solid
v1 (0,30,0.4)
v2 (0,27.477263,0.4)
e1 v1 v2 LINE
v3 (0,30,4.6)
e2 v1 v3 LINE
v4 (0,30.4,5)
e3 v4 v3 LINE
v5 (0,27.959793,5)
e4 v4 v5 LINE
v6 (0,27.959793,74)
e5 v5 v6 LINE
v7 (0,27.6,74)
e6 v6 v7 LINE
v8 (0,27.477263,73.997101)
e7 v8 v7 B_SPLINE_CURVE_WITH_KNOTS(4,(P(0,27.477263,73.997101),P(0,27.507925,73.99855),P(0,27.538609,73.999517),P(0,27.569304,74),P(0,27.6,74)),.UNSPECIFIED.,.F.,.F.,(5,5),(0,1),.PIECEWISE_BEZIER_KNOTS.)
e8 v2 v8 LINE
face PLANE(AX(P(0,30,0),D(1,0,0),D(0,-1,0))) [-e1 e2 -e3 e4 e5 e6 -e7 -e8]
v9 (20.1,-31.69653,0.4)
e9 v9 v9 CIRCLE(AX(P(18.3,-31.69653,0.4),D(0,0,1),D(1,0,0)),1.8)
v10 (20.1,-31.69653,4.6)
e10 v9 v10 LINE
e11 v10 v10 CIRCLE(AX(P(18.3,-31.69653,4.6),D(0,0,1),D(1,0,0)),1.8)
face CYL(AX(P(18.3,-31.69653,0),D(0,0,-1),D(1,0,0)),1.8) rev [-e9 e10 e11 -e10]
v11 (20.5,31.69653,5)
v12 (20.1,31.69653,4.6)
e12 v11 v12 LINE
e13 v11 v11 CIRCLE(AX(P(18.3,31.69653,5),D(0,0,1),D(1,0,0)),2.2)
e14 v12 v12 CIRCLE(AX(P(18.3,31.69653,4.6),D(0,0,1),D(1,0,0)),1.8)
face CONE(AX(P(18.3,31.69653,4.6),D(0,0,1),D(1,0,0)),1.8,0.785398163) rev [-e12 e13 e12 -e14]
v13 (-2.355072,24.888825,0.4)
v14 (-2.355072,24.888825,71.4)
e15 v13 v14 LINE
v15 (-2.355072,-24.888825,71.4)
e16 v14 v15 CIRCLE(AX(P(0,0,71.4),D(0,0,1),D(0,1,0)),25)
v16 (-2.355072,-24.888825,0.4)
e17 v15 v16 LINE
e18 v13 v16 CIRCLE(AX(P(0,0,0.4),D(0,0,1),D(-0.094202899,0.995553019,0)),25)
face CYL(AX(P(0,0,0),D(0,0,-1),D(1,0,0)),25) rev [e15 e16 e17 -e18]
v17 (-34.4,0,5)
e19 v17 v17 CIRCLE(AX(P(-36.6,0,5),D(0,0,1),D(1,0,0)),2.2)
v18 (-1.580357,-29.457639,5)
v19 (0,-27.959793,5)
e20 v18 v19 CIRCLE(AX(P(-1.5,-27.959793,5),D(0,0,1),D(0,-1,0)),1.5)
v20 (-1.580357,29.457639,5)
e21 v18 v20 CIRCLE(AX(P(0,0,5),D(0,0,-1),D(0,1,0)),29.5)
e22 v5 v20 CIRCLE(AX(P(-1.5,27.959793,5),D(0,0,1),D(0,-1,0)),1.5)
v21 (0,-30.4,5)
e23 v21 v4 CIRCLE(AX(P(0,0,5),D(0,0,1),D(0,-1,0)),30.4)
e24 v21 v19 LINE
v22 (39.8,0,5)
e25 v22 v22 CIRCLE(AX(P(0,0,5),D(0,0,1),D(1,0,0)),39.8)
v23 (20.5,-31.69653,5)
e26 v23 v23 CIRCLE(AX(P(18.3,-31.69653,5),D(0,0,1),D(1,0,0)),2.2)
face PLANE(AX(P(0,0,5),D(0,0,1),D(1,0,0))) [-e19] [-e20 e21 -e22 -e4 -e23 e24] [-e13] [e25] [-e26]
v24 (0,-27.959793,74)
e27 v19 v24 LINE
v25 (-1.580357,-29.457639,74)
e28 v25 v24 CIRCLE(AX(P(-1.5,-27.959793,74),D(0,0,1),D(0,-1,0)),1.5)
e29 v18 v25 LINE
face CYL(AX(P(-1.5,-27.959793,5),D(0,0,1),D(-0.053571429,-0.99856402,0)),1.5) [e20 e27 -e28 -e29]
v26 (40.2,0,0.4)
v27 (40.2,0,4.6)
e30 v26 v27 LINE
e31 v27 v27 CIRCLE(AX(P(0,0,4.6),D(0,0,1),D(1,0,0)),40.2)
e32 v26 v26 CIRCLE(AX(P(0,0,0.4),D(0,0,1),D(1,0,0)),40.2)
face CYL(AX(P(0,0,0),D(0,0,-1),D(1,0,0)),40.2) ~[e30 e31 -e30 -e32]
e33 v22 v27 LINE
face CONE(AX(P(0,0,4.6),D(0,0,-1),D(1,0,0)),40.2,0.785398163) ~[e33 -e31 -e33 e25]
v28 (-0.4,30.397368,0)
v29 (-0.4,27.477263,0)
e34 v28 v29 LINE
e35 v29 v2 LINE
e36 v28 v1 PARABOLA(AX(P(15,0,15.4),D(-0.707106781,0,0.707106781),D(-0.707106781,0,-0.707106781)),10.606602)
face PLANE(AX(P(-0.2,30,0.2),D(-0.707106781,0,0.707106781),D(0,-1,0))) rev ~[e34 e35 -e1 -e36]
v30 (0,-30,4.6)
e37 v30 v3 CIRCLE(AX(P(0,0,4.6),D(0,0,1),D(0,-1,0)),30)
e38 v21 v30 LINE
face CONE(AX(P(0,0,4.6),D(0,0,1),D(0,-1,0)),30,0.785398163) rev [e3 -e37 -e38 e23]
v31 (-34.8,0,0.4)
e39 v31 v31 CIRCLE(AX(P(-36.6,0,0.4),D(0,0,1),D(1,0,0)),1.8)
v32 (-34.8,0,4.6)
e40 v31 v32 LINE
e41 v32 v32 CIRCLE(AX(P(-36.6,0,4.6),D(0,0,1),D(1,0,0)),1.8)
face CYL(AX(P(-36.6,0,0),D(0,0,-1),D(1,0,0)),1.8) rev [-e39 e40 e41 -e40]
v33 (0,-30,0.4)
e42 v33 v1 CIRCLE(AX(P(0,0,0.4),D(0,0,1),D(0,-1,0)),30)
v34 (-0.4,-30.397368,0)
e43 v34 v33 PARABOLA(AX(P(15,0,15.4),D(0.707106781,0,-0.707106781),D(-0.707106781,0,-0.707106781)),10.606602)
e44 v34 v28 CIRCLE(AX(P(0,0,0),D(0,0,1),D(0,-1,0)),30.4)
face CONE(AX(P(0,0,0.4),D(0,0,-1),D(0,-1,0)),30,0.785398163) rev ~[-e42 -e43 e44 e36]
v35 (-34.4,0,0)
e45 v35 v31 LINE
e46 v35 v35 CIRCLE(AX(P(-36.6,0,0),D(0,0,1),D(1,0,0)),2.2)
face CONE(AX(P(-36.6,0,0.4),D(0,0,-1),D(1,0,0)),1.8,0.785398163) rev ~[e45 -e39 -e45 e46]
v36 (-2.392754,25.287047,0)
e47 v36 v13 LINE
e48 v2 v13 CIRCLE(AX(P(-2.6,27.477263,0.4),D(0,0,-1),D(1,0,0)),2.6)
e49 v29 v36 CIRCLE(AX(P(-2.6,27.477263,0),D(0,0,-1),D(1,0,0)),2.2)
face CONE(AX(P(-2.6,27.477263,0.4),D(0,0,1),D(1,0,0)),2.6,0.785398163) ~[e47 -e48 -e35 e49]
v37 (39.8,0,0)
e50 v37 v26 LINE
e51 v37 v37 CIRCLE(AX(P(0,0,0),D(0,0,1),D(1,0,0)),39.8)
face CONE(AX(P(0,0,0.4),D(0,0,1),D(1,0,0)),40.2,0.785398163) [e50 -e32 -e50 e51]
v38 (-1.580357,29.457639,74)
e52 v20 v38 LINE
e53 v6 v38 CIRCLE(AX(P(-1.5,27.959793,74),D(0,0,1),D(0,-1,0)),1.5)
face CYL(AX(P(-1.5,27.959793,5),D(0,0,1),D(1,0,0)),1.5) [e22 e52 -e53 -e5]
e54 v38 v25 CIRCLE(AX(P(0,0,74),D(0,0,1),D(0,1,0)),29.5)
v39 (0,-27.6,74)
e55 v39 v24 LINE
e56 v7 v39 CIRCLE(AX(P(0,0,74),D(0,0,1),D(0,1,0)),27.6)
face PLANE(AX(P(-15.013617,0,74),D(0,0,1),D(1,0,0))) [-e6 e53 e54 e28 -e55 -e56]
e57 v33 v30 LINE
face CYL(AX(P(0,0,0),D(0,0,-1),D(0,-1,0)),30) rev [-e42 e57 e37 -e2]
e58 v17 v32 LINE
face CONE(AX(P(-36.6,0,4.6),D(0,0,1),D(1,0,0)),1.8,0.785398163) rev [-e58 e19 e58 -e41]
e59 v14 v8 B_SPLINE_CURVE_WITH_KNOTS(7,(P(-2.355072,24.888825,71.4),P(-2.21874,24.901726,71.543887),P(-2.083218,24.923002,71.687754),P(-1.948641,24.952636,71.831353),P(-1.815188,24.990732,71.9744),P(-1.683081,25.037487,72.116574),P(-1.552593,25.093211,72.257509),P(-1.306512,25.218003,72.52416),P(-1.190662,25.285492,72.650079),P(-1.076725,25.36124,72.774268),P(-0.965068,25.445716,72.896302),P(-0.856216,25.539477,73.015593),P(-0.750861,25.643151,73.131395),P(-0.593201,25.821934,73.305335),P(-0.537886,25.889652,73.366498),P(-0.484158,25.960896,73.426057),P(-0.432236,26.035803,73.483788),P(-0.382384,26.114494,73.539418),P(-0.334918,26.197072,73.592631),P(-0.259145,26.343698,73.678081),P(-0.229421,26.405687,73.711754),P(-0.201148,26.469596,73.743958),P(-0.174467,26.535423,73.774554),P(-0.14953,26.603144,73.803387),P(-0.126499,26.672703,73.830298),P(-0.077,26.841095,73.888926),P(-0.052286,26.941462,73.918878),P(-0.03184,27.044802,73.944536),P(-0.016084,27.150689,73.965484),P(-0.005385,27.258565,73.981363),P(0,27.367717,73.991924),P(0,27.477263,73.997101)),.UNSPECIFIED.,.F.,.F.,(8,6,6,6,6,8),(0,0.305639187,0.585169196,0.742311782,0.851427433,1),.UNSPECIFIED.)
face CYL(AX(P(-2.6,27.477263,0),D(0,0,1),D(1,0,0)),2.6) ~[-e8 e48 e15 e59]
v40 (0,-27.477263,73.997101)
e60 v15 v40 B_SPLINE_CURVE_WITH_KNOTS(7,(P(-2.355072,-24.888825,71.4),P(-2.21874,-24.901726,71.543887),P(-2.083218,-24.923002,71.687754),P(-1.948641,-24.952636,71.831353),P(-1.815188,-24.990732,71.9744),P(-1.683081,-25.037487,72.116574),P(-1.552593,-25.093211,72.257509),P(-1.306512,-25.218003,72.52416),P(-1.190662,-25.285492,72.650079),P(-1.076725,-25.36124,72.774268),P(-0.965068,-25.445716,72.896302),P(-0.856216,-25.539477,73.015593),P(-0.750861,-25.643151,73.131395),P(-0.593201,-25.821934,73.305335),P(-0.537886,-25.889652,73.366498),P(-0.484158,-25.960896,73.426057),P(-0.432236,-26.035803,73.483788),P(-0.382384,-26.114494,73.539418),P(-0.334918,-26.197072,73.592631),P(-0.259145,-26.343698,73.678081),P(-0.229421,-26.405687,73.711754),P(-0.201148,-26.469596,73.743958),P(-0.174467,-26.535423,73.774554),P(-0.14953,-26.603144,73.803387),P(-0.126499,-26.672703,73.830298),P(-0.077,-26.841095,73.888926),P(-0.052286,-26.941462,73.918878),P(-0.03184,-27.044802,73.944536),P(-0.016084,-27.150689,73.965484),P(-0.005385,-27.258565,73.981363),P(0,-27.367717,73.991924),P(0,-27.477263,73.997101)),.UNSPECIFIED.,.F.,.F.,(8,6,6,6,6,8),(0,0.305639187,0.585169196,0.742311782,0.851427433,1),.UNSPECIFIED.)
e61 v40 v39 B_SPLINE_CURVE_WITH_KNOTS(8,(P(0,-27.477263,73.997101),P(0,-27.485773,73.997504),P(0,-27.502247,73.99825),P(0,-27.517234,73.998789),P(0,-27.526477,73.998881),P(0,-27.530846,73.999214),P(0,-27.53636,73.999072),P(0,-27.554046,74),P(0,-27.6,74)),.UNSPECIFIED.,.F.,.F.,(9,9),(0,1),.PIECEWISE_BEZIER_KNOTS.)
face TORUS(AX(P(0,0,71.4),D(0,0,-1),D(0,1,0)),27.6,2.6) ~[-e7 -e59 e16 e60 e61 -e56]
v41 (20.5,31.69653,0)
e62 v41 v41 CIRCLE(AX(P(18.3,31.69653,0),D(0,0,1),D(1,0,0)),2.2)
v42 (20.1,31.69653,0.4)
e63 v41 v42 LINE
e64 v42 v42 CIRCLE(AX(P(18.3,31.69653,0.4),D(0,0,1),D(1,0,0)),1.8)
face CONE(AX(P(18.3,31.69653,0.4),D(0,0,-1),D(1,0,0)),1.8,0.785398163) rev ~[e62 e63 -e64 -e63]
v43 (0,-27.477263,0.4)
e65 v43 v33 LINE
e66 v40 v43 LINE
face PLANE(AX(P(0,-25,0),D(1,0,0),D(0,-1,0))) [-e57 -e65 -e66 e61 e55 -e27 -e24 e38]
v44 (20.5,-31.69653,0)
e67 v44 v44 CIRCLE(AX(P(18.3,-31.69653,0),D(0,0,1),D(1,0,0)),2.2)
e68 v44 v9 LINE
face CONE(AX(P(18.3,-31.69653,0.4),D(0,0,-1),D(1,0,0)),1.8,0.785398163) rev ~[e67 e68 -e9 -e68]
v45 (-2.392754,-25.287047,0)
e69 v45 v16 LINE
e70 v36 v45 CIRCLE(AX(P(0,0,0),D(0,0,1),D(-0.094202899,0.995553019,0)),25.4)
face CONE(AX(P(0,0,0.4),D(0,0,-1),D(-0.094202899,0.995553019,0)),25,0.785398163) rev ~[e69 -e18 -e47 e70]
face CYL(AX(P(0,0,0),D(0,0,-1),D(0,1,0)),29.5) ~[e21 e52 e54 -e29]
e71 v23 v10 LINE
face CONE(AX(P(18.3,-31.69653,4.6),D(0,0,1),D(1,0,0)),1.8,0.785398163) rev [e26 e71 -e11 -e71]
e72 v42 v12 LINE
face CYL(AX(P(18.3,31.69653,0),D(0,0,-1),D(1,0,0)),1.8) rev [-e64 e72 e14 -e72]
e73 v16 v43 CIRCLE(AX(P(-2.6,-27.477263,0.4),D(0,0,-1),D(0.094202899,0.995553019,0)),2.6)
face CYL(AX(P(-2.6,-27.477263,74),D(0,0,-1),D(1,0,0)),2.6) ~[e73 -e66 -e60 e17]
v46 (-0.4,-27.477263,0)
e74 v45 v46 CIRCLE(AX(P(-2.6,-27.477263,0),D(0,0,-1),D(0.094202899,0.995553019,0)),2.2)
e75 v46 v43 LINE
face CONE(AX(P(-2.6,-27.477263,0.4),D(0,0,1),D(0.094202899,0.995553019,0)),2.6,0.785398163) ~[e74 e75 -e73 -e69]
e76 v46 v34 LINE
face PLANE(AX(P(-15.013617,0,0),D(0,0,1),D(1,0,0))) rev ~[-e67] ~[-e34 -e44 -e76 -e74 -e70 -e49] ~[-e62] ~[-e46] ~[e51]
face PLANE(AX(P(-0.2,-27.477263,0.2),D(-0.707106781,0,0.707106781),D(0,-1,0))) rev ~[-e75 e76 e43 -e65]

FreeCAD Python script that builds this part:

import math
import FreeCAD as App
import Part
import Sketcher
from FreeCAD import Vector
Q = App.Units.Quantity


def edges_at(feature, points):
    """Names of the edges that pass closest to the given points."""
    edges = feature.Shape.Edges
    near = lambda p: min(range(len(edges)), key=lambda i: edges[i].distToShape(Part.Vertex(*p))[0])
    return sorted({f"Edge{near(p) + 1}" for p in points})

doc = App.newDocument("Part")
params = doc.addObject("Spreadsheet::Sheet", "Params")
for row, (alias, value) in enumerate([
    ("sketch1_diameter", "50 mm"),
    ("sketch1_diameter2", "80.4 mm"),
    ("pad1_length", "5 mm"),
    ("sketch2_radius", "25 mm"),
    ("sketch2_radius2", "29.5 mm"),
    ("pad2_length", "74 mm"),
    ("sketch3_radius", "30 mm"),
    ("sketch3_radius2", "25 mm"),
    ("pocket1_length", "5 mm"),
    ("fillet_radius", "1.5 mm"),
    ("fillet2_radius", "2.6 mm"),
    ("sketch4_diameter", "3.6 mm"),
    ("pocket2_length", "5 mm"),
    ("chamfer_size", "0.4 mm"),
], start=1):
    params.set(f"A{row}", alias)
    params.set(f"B{row}", "=" + value)
    params.setAlias(f"B{row}", alias)

body = doc.addObject("PartDesign::Body", "Body")

sketch1 = body.newObject("Sketcher::SketchObject", "Sketch")
sketch1.AttachmentSupport = (doc.getObject("XY_Plane"), [""])
sketch1.MapMode = "FlatFace"
sketch1.addGeometry(Part.Circle(Vector(0, 0, 0), Vector(0, 0, 1), 40.2), False)
sketch1.addGeometry(Part.Circle(Vector(0, 0, 0), Vector(0, 0, 1), 25), False)
sketch1.addConstraint(Sketcher.Constraint("Coincident", 0, 3, -1, 1))
sketch1.addConstraint(Sketcher.Constraint("Coincident", 1, 3, -1, 1))
sketch1.addConstraint(Sketcher.Constraint("Diameter", 1, Q("50 mm")))
sketch1.addConstraint(Sketcher.Constraint("Diameter", 0, Q("80.4 mm")))
sketch1.setExpression("Constraints[2]", "Params.sketch1_diameter")
sketch1.setExpression("Constraints[3]", "Params.sketch1_diameter2")
pad1 = body.newObject("PartDesign::Pad", "Pad")
pad1.Profile = sketch1
pad1.setExpression("Length", "Params.pad1_length")

sketch2 = body.newObject("Sketcher::SketchObject", "Sketch001")
sketch2.AttachmentSupport = (doc.getObject("XY_Plane"), [""])
sketch2.MapMode = "FlatFace"
sketch2.addGeometry(Part.ArcOfCircle(Part.Circle(Vector(0, 0, 0), Vector(0, 0, 1), 29.5), math.radians(90), math.radians(270)), False)
sketch2.addGeometry(Part.LineSegment(Vector(0, -29.5, 0), Vector(0, -25, 0)), False)
sketch2.addGeometry(Part.ArcOfCircle(Part.Circle(Vector(0, 0, 0), Vector(0, 0, 1), 25), math.radians(90), math.radians(270)), False)
sketch2.addGeometry(Part.LineSegment(Vector(0, 25, 0), Vector(0, 29.5, 0)), False)
sketch2.addConstraint(Sketcher.Constraint("Coincident", 0, 2, 1, 1))
sketch2.addConstraint(Sketcher.Constraint("Coincident", 1, 2, 2, 2))
sketch2.addConstraint(Sketcher.Constraint("Coincident", 2, 1, 3, 1))
sketch2.addConstraint(Sketcher.Constraint("Coincident", 3, 2, 0, 1))
sketch2.addConstraint(Sketcher.Constraint("Vertical", 1))
sketch2.addConstraint(Sketcher.Constraint("Vertical", 3))
sketch2.addConstraint(Sketcher.Constraint("Coincident", 0, 3, -1, 1))
sketch2.addConstraint(Sketcher.Constraint("Coincident", 2, 3, -1, 1))
sketch2.addConstraint(Sketcher.Constraint("PointOnObject", 0, 2, -2))
sketch2.addConstraint(Sketcher.Constraint("PointOnObject", 2, 1, -2))
sketch2.addConstraint(Sketcher.Constraint("Radius", 2, Q("25 mm")))
sketch2.addConstraint(Sketcher.Constraint("Radius", 0, Q("29.5 mm")))
sketch2.setExpression("Constraints[10]", "Params.sketch2_radius")
sketch2.setExpression("Constraints[11]", "Params.sketch2_radius2")
pad2 = body.newObject("PartDesign::Pad", "Pad001")
pad2.Profile = sketch2
pad2.setExpression("Length", "Params.pad2_length")

sketch3 = body.newObject("Sketcher::SketchObject", "Sketch002")
sketch3.AttachmentSupport = (doc.getObject("XY_Plane"), [""])
sketch3.MapMode = "FlatFace"
sketch3.addGeometry(Part.ArcOfCircle(Part.Circle(Vector(0, 0, 0), Vector(0, 0, 1), 30), math.radians(-90), math.radians(90)), False)
sketch3.addGeometry(Part.LineSegment(Vector(0, 30, 0), Vector(0, 25, 0)), False)
sketch3.addGeometry(Part.ArcOfCircle(Part.Circle(Vector(0, 0, 0), Vector(0, 0, 1), 25), math.radians(-90), math.radians(90)), False)
sketch3.addGeometry(Part.LineSegment(Vector(0, -25, 0), Vector(0, -30, 0)), False)
sketch3.addConstraint(Sketcher.Constraint("Coincident", 0, 2, 1, 1))
sketch3.addConstraint(Sketcher.Constraint("Coincident", 1, 2, 2, 2))
sketch3.addConstraint(Sketcher.Constraint("Coincident", 2, 1, 3, 1))
sketch3.addConstraint(Sketcher.Constraint("Coincident", 3, 2, 0, 1))
sketch3.addConstraint(Sketcher.Constraint("Vertical", 1))
sketch3.addConstraint(Sketcher.Constraint("Vertical", 3))
sketch3.addConstraint(Sketcher.Constraint("Coincident", 0, 3, -1, 1))
sketch3.addConstraint(Sketcher.Constraint("Coincident", 2, 3, -1, 1))
sketch3.addConstraint(Sketcher.Constraint("PointOnObject", 0, 2, -2))
sketch3.addConstraint(Sketcher.Constraint("PointOnObject", 2, 1, -2))
sketch3.addConstraint(Sketcher.Constraint("Radius", 0, Q("30 mm")))
sketch3.addConstraint(Sketcher.Constraint("Radius", 2, Q("25 mm")))
sketch3.setExpression("Constraints[10]", "Params.sketch3_radius")
sketch3.setExpression("Constraints[11]", "Params.sketch3_radius2")
pocket1 = body.newObject("PartDesign::Pocket", "Pocket")
pocket1.Profile = sketch3
pocket1.setExpression("Length", "Params.pocket1_length")
pocket1.Reversed = True
doc.recompute()

fillet = body.newObject("PartDesign::Fillet", "Fillet")
fillet.Base = (pocket1, edges_at(pocket1, [(0, -29.5, 39.5), (0, 29.5, 39.5)]))
fillet.setExpression("Radius", "Params.fillet_radius")
doc.recompute()

fillet2 = body.newObject("PartDesign::Fillet", "Fillet001")
fillet2.Base = (fillet, edges_at(fillet, [(-25, 0, 74), (0, -25, 37), (0, 25, 37)]))
fillet2.setExpression("Radius", "Params.fillet2_radius")

sketch4 = body.newObject("Sketcher::SketchObject", "Sketch003")
sketch4.AttachmentSupport = (doc.getObject("XY_Plane"), [""])
sketch4.MapMode = "FlatFace"
sketch4.addGeometry(Part.Circle(Vector(-36.6, 0, 0), Vector(0, 0, 1), 1.8), False)
sketch4.addGeometry(Part.Circle(Vector(18.3, 31.69653, 0), Vector(0, 0, 1), 1.8), False)
sketch4.addGeometry(Part.Circle(Vector(18.3, -31.69653, 0), Vector(0, 0, 1), 1.8), False)
sketch4.addConstraint(Sketcher.Constraint("Equal", 0, 1))
sketch4.addConstraint(Sketcher.Constraint("Equal", 1, 2))
sketch4.addConstraint(Sketcher.Constraint("Symmetric", 1, 3, 2, 3, -1))
sketch4.addConstraint(Sketcher.Constraint("PointOnObject", 0, 3, -1))
sketch4.addConstraint(Sketcher.Constraint("Diameter", 0, Q("3.6 mm")))
sketch4.addConstraint(Sketcher.Constraint("DistanceX", 0, 3, -1, 1, Q("36.6 mm")))
sketch4.addConstraint(Sketcher.Constraint("DistanceX", -1, 1, 1, 3, Q("18.3 mm")))
sketch4.addConstraint(Sketcher.Constraint("DistanceY", -1, 1, 1, 3, Q("31.69653 mm")))
sketch4.setExpression("Constraints[4]", "Params.sketch4_diameter")
pocket2 = body.newObject("PartDesign::Pocket", "Pocket001")
pocket2.Profile = sketch4
pocket2.setExpression("Length", "Params.pocket2_length")
pocket2.Reversed = True
doc.recompute()

chamfer = body.newObject("PartDesign::Chamfer", "Chamfer")
chamfer.Base = (pocket2, edges_at(pocket2, [
    (-40.2, 0, 0),
    (16.5, -31.697, 0),
    (-38.4, 0, 0),
    (16.5, 31.697, 0),
    (30, 0, 0),
    (0, -28.739, 0),
    (0, -28.739, 0),
    (-0.677, -25.728, 0),
    (-25, 0, 0),
    (0, 28.739, 0),
    (0, 28.739, 0),
    (-0.677, 25.728, 0),
    (-40.2, 0, 5),
    (-38.4, 0, 5),
    (16.5, 31.697, 5),
    (16.5, -31.697, 5),
    (30, 0, 5),
]))
chamfer.setExpression("Size", "Params.chamfer_size")

doc.recompute()
